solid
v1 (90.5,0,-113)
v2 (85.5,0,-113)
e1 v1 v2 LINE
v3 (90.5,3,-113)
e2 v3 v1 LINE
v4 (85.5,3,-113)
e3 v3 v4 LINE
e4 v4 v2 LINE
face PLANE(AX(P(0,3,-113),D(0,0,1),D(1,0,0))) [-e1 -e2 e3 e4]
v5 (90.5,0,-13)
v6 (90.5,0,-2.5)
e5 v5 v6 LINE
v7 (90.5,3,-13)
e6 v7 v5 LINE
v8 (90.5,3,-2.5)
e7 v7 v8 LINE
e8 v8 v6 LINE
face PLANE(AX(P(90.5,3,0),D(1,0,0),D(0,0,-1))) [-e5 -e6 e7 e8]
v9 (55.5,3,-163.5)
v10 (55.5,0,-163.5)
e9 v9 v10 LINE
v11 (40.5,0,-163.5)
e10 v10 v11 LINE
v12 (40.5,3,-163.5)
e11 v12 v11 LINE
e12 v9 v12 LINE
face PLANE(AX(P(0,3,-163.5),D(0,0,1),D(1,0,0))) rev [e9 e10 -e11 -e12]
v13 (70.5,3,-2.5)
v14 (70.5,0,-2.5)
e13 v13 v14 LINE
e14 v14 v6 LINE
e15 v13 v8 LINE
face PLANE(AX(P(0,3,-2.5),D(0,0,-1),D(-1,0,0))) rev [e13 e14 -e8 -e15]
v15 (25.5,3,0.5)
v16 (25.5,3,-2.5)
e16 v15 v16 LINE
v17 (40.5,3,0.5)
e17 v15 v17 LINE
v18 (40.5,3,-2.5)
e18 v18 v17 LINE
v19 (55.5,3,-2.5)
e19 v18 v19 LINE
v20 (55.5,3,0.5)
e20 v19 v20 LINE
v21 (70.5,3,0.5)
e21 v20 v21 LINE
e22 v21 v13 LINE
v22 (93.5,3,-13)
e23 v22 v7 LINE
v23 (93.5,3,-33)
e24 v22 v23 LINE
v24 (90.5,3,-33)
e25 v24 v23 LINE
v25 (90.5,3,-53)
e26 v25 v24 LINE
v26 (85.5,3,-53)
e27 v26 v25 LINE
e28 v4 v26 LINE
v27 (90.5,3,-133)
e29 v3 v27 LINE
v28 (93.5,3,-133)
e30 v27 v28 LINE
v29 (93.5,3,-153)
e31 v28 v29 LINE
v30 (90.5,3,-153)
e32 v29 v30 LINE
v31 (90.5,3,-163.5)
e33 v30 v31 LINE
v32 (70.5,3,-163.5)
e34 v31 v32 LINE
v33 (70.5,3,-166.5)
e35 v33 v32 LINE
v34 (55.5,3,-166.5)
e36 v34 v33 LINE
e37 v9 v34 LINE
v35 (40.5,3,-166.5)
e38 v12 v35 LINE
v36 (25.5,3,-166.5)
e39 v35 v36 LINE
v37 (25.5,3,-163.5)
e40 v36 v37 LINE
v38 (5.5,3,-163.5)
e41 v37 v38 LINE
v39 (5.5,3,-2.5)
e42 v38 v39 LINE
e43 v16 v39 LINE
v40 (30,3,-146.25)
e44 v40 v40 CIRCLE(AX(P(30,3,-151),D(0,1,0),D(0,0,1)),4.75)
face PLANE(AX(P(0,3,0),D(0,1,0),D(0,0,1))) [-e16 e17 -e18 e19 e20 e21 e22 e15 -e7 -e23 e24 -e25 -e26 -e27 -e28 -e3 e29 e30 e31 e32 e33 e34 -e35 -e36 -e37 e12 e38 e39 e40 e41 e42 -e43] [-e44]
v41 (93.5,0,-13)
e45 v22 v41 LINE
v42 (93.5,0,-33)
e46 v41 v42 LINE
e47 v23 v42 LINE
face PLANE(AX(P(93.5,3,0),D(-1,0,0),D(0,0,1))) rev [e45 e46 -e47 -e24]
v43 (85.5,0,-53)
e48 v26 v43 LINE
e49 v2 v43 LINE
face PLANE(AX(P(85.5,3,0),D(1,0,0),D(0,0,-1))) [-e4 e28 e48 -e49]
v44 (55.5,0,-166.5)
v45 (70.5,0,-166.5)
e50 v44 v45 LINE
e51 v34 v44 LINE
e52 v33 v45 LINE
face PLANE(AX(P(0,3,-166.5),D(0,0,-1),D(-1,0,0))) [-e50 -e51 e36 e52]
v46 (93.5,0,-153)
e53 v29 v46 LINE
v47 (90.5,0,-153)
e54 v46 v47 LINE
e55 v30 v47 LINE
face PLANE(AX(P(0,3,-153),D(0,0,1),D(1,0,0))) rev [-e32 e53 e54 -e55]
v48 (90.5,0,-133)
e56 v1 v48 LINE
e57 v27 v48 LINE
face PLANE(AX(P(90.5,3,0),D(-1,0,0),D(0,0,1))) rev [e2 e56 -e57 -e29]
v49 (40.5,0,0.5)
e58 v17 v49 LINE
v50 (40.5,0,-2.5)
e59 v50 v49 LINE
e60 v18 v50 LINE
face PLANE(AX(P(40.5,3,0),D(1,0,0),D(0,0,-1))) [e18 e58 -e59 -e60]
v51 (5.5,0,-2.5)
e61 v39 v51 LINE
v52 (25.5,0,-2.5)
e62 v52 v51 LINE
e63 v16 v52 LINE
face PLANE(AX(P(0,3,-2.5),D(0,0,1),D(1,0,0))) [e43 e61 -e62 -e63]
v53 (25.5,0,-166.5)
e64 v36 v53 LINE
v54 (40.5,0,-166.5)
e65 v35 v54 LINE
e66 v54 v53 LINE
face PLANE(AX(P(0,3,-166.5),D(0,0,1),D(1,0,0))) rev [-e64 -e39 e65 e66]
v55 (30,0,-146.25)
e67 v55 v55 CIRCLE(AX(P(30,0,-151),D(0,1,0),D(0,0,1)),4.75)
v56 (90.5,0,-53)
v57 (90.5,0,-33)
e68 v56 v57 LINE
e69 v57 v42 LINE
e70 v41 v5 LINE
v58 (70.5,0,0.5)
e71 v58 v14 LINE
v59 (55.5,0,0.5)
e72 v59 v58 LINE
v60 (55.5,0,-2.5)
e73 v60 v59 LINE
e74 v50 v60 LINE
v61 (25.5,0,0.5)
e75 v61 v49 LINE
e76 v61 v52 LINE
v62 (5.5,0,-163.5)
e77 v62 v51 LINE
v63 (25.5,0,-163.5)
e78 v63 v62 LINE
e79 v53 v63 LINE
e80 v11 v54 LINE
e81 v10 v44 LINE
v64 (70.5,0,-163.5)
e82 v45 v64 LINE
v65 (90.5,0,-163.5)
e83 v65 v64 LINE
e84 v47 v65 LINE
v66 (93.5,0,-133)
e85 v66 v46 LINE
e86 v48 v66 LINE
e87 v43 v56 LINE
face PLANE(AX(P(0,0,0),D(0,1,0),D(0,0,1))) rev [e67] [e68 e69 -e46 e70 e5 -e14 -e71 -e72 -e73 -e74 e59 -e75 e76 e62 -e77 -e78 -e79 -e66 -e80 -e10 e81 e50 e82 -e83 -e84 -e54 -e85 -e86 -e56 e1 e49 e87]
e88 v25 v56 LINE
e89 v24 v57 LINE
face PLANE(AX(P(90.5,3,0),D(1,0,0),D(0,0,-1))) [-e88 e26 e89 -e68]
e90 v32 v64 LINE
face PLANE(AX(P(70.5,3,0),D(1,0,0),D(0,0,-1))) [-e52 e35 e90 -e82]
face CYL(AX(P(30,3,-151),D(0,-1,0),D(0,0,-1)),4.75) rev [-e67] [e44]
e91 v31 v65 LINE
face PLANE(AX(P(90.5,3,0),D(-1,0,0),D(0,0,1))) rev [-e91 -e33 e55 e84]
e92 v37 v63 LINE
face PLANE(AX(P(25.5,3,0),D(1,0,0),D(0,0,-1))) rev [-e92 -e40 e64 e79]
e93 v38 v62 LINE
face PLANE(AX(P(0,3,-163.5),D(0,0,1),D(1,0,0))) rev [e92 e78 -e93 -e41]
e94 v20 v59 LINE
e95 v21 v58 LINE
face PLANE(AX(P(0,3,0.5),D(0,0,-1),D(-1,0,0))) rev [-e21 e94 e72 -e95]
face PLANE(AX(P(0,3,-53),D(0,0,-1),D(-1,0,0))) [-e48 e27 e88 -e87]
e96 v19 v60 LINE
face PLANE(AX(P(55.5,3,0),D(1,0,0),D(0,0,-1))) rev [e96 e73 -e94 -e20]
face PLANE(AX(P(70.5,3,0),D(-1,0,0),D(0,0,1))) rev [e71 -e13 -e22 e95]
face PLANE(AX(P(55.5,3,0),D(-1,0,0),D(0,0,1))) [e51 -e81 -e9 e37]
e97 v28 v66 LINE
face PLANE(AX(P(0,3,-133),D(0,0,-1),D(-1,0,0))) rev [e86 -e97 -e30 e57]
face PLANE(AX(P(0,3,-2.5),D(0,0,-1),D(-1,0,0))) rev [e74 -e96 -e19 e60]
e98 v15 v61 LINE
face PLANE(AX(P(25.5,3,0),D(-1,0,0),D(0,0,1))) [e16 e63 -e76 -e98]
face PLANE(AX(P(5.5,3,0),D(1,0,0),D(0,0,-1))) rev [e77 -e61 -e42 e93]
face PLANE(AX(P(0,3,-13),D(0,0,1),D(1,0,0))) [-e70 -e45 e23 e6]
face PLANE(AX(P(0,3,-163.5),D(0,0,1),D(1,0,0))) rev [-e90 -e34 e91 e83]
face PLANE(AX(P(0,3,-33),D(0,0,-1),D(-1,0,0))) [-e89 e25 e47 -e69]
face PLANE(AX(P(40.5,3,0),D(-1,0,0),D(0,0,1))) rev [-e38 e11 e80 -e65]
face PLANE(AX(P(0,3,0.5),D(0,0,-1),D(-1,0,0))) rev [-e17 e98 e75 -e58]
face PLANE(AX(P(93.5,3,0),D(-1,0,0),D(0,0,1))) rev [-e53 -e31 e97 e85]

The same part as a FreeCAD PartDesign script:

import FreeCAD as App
import Part
import Sketcher
Q = App.Units.Quantity


def add_polygon(sketch, points):
    """Adds a closed chain of lines whose ends are joined by coincident constraints."""
    first, n = sketch.GeometryCount, len(points)
    for a, b in zip(points, points[1:] + points[:1]):
        sketch.addGeometry(Part.LineSegment(App.Vector(*a, 0), App.Vector(*b, 0)), False)
    for i in range(n):
        sketch.addConstraint(Sketcher.Constraint("Coincident", first + i, 2, first + (i + 1) % n, 1))

doc = App.newDocument("Part")
body = doc.addObject("PartDesign::Body", "Body")

# Sketch on XZ plane
sketch1 = body.newObject("Sketcher::SketchObject", "Sketch")
sketch1.AttachmentSupport = (doc.getObject("XZ_Plane"), [""])
sketch1.MapMode = "FlatFace"
add_polygon(sketch1, [(25.5, -2.5), (25.5, 0.5), (40.5, 0.5), (40.5, -2.5), (55.5, -2.5), (55.5, 0.5), (70.5, 0.5), (70.5, -2.5), (90.5, -2.5), (90.5, -13), (93.5, -13), (93.5, -33), (90.5, -33), (90.5, -53), (85.5, -53), (85.5, -113), (90.5, -113), (90.5, -133), (93.5, -133), (93.5, -153), (90.5, -153), (90.5, -163.5), (70.5, -163.5), (70.5, -166.5), (55.5, -166.5), (55.5, -163.5), (40.5, -163.5), (40.5, -166.5), (25.5, -166.5), (25.5, -163.5), (5.5, -163.5), (5.5, -2.5)])  # lines 0-31
sketch1.addGeometry(Part.Circle(App.Vector(30, -151, 0), App.Vector(0, 0, 1), 4.8), False)  # 32
sketch1.addConstraint(Sketcher.Constraint("Vertical", 0))
sketch1.addConstraint(Sketcher.Constraint("Horizontal", 1))
sketch1.addConstraint(Sketcher.Constraint("Vertical", 2))
sketch1.addConstraint(Sketcher.Constraint("Horizontal", 3))
sketch1.addConstraint(Sketcher.Constraint("Vertical", 4))
sketch1.addConstraint(Sketcher.Constraint("Horizontal", 5))
sketch1.addConstraint(Sketcher.Constraint("Vertical", 6))
sketch1.addConstraint(Sketcher.Constraint("Horizontal", 7))
sketch1.addConstraint(Sketcher.Constraint("Vertical", 8))
sketch1.addConstraint(Sketcher.Constraint("Horizontal", 9))
sketch1.addConstraint(Sketcher.Constraint("Vertical", 10))
sketch1.addConstraint(Sketcher.Constraint("Horizontal", 11))
sketch1.addConstraint(Sketcher.Constraint("Vertical", 12))
sketch1.addConstraint(Sketcher.Constraint("Horizontal", 13))
sketch1.addConstraint(Sketcher.Constraint("Vertical", 14))
sketch1.addConstraint(Sketcher.Constraint("Horizontal", 15))
sketch1.addConstraint(Sketcher.Constraint("Vertical", 16))
sketch1.addConstraint(Sketcher.Constraint("Horizontal", 17))
sketch1.addConstraint(Sketcher.Constraint("Vertical", 18))
sketch1.addConstraint(Sketcher.Constraint("Horizontal", 19))
sketch1.addConstraint(Sketcher.Constraint("Vertical", 20))
sketch1.addConstraint(Sketcher.Constraint("Horizontal", 21))
sketch1.addConstraint(Sketcher.Constraint("Vertical", 22))
sketch1.addConstraint(Sketcher.Constraint("Horizontal", 23))
sketch1.addConstraint(Sketcher.Constraint("Vertical", 24))
sketch1.addConstraint(Sketcher.Constraint("Horizontal", 25))
sketch1.addConstraint(Sketcher.Constraint("Vertical", 26))
sketch1.addConstraint(Sketcher.Constraint("Horizontal", 27))
sketch1.addConstraint(Sketcher.Constraint("Vertical", 28))
sketch1.addConstraint(Sketcher.Constraint("Horizontal", 29))
sketch1.addConstraint(Sketcher.Constraint("Vertical", 30))
sketch1.addConstraint(Sketcher.Constraint("Horizontal", 31))
sketch1.addConstraint(Sketcher.Constraint("Horizontal", 1, 2, 4, 2))
sketch1.addConstraint(Sketcher.Constraint("Horizontal", 3, 2, 6, 2))
sketch1.addConstraint(Sketcher.Constraint("Horizontal", 21, 2, 24, 2))
sketch1.addConstraint(Sketcher.Constraint("Horizontal", 23, 2, 26, 2))
sketch1.addConstraint(Sketcher.Constraint("Horizontal", 25, 2, 28, 2))
sketch1.addConstraint(Sketcher.Constraint("Horizontal", 7, 2, 30, 2))
sketch1.addConstraint(Sketcher.Constraint("Vertical", 8, 2, 11, 2))
sketch1.addConstraint(Sketcher.Constraint("Vertical", 12, 2, 15, 2))
sketch1.addConstraint(Sketcher.Constraint("Vertical", 10, 2, 17, 2))
sketch1.addConstraint(Sketcher.Constraint("Vertical", 16, 2, 19, 2))
sketch1.addConstraint(Sketcher.Constraint("Vertical", 6, 2, 21, 2))
sketch1.addConstraint(Sketcher.Constraint("Vertical", 4, 2, 23, 2))
sketch1.addConstraint(Sketcher.Constraint("Vertical", 2, 2, 25, 2))
sketch1.addConstraint(Sketcher.Constraint("Vertical", 0, 2, 27, 2))
sketch1.addConstraint(Sketcher.Constraint("Equal", 1, 3))
sketch1.addConstraint(Sketcher.Constraint("Equal", 3, 5))
sketch1.addConstraint(Sketcher.Constraint("Equal", 21, 29))
sketch1.addConstraint(Sketcher.Constraint("Equal", 19, 0))
sketch1.addConstraint(Sketcher.Constraint("Equal", 31, 10))
sketch1.addConstraint(Sketcher.Constraint("Equal", 10, 12))
sketch1.addConstraint(Sketcher.Constraint("Equal", 12, 16))
sketch1.addConstraint(Sketcher.Constraint("Equal", 16, 18))
sketch1.addConstraint(Sketcher.Constraint("Equal", 8, 20))
sketch1.addConstraint(Sketcher.Constraint("Equal", 6, 22))
sketch1.addConstraint(Sketcher.Constraint("Diameter", 32, Q("9.5 mm")))
sketch1.addConstraint(Sketcher.Constraint("DistanceX", 1, 1, 1, 2, Q("15 mm")))
sketch1.addConstraint(Sketcher.Constraint("DistanceX", 7, 1, 7, 2, Q("20 mm")))
sketch1.addConstraint(Sketcher.Constraint("DistanceX", 9, 1, 9, 2, Q("3 mm")))
sketch1.addConstraint(Sketcher.Constraint("DistanceX", 13, 2, 13, 1, Q("5 mm")))
sketch1.addConstraint(Sketcher.Constraint("DistanceY", 14, 2, 14, 1, Q("60 mm")))
sketch1.addConstraint(Sketcher.Constraint("DistanceY", 30, 1, 30, 2, Q("161 mm")))
sketch1.addConstraint(Sketcher.Constraint("DistanceX", -1, 1, 32, 3, Q("30 mm")))
sketch1.addConstraint(Sketcher.Constraint("DistanceY", 32, 3, -1, 1, Q("151 mm")))
sketch1.addConstraint(Sketcher.Constraint("DistanceY", 8, 2, -1, 1, Q("13 mm")))
sketch1.addConstraint(Sketcher.Constraint("DistanceX", -1, 1, 0, 2, Q("25.5 mm")))
pad1 = body.newObject("PartDesign::Pad", "Pad")
pad1.Profile = sketch1
pad1.Length = 3
pad1.Reversed = True

doc.recompute()
